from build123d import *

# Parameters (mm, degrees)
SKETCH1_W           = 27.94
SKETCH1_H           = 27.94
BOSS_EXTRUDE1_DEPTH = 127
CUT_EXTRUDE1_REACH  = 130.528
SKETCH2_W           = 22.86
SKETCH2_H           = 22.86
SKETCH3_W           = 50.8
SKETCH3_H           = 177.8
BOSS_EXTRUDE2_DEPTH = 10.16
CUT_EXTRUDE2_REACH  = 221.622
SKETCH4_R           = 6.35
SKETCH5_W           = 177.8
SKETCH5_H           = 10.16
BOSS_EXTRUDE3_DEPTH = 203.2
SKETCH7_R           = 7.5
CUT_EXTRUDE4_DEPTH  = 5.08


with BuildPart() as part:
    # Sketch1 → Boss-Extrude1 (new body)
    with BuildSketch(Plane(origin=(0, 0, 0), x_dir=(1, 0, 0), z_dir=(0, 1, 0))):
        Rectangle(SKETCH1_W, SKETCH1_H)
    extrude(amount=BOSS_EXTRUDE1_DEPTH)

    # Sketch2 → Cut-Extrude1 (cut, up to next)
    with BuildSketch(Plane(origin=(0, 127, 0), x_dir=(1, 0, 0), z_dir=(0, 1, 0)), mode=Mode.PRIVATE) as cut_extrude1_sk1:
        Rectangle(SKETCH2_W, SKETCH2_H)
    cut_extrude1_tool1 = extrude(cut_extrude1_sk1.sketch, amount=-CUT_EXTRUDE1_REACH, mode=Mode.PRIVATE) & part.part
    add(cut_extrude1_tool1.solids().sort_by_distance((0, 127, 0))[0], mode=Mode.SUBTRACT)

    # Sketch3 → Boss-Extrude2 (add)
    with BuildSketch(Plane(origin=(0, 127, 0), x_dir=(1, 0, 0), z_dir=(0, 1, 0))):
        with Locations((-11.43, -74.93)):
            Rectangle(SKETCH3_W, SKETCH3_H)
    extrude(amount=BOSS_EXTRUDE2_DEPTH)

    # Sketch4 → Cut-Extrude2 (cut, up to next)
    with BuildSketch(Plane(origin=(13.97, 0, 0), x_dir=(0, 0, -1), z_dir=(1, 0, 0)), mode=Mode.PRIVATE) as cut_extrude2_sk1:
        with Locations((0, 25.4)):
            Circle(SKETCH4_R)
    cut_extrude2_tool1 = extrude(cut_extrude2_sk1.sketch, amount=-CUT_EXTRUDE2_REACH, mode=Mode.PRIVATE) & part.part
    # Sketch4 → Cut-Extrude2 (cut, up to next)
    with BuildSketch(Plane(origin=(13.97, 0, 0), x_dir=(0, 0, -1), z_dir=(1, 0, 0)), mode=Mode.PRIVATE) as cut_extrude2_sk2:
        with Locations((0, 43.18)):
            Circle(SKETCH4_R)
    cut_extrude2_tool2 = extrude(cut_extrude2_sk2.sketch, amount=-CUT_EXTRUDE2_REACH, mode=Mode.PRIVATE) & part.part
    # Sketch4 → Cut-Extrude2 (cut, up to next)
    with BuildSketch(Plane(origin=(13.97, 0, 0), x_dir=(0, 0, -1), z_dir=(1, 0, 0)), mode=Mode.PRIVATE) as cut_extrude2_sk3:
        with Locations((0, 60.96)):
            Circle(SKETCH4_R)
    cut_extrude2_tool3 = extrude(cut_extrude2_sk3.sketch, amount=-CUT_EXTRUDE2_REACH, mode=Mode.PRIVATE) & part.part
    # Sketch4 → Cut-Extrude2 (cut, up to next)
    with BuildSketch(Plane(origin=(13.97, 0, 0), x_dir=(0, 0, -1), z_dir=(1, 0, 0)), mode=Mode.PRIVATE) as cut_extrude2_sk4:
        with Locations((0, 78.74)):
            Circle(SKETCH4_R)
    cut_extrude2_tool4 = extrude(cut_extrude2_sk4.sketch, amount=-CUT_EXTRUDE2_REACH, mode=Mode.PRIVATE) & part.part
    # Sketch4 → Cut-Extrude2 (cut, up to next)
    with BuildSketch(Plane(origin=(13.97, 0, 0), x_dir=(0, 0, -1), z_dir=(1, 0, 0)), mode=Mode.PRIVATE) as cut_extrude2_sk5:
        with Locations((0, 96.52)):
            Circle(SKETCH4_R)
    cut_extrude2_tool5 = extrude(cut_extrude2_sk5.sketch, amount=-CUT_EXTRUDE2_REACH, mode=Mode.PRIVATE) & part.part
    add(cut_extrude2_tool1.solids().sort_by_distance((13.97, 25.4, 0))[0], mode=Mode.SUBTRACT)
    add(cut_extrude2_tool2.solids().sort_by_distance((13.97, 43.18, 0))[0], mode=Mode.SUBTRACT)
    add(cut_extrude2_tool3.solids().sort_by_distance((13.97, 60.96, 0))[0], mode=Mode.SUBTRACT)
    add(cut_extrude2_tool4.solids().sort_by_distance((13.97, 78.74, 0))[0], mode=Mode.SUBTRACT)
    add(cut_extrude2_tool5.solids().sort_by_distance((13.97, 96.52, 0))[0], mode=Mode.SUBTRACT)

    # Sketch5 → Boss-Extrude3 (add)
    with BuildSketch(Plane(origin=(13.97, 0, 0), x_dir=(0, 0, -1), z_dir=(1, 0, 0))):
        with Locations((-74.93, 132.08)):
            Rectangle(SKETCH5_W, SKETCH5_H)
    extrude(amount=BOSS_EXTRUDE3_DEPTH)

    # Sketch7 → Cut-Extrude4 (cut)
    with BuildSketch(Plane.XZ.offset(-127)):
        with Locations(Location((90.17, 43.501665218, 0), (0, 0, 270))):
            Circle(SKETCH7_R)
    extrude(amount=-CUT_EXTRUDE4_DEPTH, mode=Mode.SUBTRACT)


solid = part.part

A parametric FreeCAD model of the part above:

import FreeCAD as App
import Part
import Sketcher
Q = App.Units.Quantity

doc = App.newDocument("Part")
params = doc.addObject("Spreadsheet::Sheet", "Params")
for row, (alias, value) in enumerate([
    ("sketch1_width", "1.1 in"),
    ("pad1_length", "5 in"),
    ("sketch2_width", "0.9 in"),
    ("sketch3_width", "2 in"),
    ("sketch3_height", "7 in"),
    ("pad2_length", "0.4 in"),
    ("sketch4_diameter", "0.5 in"),
    ("sketch5_diameter", "0.5 in"),
    ("sketch6_diameter", "0.5 in"),
    ("sketch7_diameter", "0.5 in"),
    ("sketch8_diameter", "0.5 in"),
    ("sketch9_height", "7 in"),
    ("sketch9_width", "0.4 in"),
    ("pad3_length", "8 in"),
    ("pocket7_length", "0.2 in"),
], start=1):
    params.set(f"A{row}", alias)
    params.set(f"B{row}", "=" + value)
    params.setAlias(f"B{row}", alias)

body = doc.addObject("PartDesign::Body", "Body")

# Sketch on XZ plane
sketch1 = doc.addObject("Sketcher::SketchObject", "Sketch")
body.addObject(sketch1)
sketch1.AttachmentSupport = (doc.XZ_Plane, [""])
sketch1.MapMode = "FlatFace"
sketch1.addGeometry(Part.LineSegment(App.Vector(-14, -14, 0), App.Vector(-14, 14, 0)), False)
sketch1.addGeometry(Part.LineSegment(App.Vector(-14, 14, 0), App.Vector(14, 14, 0)), False)
sketch1.addGeometry(Part.LineSegment(App.Vector(14, 14, 0), App.Vector(14, -14, 0)), False)
sketch1.addGeometry(Part.LineSegment(App.Vector(14, -14, 0), App.Vector(-14, -14, 0)), False)
sketch1.addConstraint(Sketcher.Constraint("Coincident", 0, 2, 1, 1))
sketch1.addConstraint(Sketcher.Constraint("Coincident", 1, 2, 2, 1))
sketch1.addConstraint(Sketcher.Constraint("Coincident", 2, 2, 3, 1))
sketch1.addConstraint(Sketcher.Constraint("Coincident", 3, 2, 0, 1))
sketch1.addConstraint(Sketcher.Constraint("Vertical", 0))
sketch1.addConstraint(Sketcher.Constraint("Horizontal", 1))
sketch1.addConstraint(Sketcher.Constraint("Vertical", 2))
sketch1.addConstraint(Sketcher.Constraint("Horizontal", 3))
sketch1.addConstraint(Sketcher.Constraint("Symmetric", 0, 2, 2, 2, -1, 1))
sketch1.addConstraint(Sketcher.Constraint("Equal", 3, 0))
sketch1.addConstraint(Sketcher.Constraint("DistanceX", 1, 1, 1, 2, Q("1.1 in")))
sketch1.setExpression("Constraints[10]", "Params.sketch1_width")
pad1 = doc.addObject("PartDesign::Pad", "Pad")
body.addObject(pad1)
pad1.Profile = sketch1
pad1.setExpression("Length", "Params.pad1_length")
pad1.Reversed = True

# Sketch on XZ plane
sketch2 = doc.addObject("Sketcher::SketchObject", "Sketch001")
body.addObject(sketch2)
sketch2.AttachmentSupport = (doc.XZ_Plane, [""])
sketch2.MapMode = "FlatFace"
sketch2.AttachmentOffset = App.Placement(App.Vector(0, 0, -5 * 25.4), App.Rotation())
sketch2.addGeometry(Part.LineSegment(App.Vector(-11, -11, 0), App.Vector(-11, 11, 0)), False)
sketch2.addGeometry(Part.LineSegment(App.Vector(-11, 11, 0), App.Vector(11, 11, 0)), False)
sketch2.addGeometry(Part.LineSegment(App.Vector(11, 11, 0), App.Vector(11, -11, 0)), False)
sketch2.addGeometry(Part.LineSegment(App.Vector(11, -11, 0), App.Vector(-11, -11, 0)), False)
sketch2.addConstraint(Sketcher.Constraint("Coincident", 0, 2, 1, 1))
sketch2.addConstraint(Sketcher.Constraint("Coincident", 1, 2, 2, 1))
sketch2.addConstraint(Sketcher.Constraint("Coincident", 2, 2, 3, 1))
sketch2.addConstraint(Sketcher.Constraint("Coincident", 3, 2, 0, 1))
sketch2.addConstraint(Sketcher.Constraint("Vertical", 0))
sketch2.addConstraint(Sketcher.Constraint("Horizontal", 1))
sketch2.addConstraint(Sketcher.Constraint("Vertical", 2))
sketch2.addConstraint(Sketcher.Constraint("Horizontal", 3))
sketch2.addConstraint(Sketcher.Constraint("Symmetric", 0, 2, 2, 2, -1, 1))
sketch2.addConstraint(Sketcher.Constraint("Equal", 3, 0))
sketch2.addConstraint(Sketcher.Constraint("DistanceX", 1, 1, 1, 2, Q("0.9 in")))
sketch2.setExpression("Constraints[10]", "Params.sketch2_width")
pocket1 = doc.addObject("PartDesign::Pocket", "Pocket")
body.addObject(pocket1)
pocket1.Profile = sketch2
pocket1.Type = "UpToFirst"
pocket1.Reversed = True

# Sketch on XZ plane
sketch3 = doc.addObject("Sketcher::SketchObject", "Sketch002")
body.addObject(sketch3)
sketch3.AttachmentSupport = (doc.XZ_Plane, [""])
sketch3.MapMode = "FlatFace"
sketch3.AttachmentOffset = App.Placement(App.Vector(0, 0, -5 * 25.4), App.Rotation())
sketch3.addGeometry(Part.LineSegment(App.Vector(-37, -14, 0), App.Vector(-37, 164, 0)), False)
sketch3.addGeometry(Part.LineSegment(App.Vector(-37, 164, 0), App.Vector(14, 164, 0)), False)
sketch3.addGeometry(Part.LineSegment(App.Vector(14, 164, 0), App.Vector(14, -14, 0)), False)
sketch3.addGeometry(Part.LineSegment(App.Vector(14, -14, 0), App.Vector(-37, -14, 0)), False)
sketch3.addConstraint(Sketcher.Constraint("Coincident", 0, 2, 1, 1))
sketch3.addConstraint(Sketcher.Constraint("Coincident", 1, 2, 2, 1))
sketch3.addConstraint(Sketcher.Constraint("Coincident", 2, 2, 3, 1))
sketch3.addConstraint(Sketcher.Constraint("Coincident", 3, 2, 0, 1))
sketch3.addConstraint(Sketcher.Constraint("Vertical", 0))
sketch3.addConstraint(Sketcher.Constraint("Horizontal", 1))
sketch3.addConstraint(Sketcher.Constraint("Vertical", 2))
sketch3.addConstraint(Sketcher.Constraint("Horizontal", 3))
sketch3.addConstraint(Sketcher.Constraint("DistanceX", 1, 1, 1, 2, Q("2 in")))
sketch3.addConstraint(Sketcher.Constraint("DistanceY", 0, 1, 0, 2, Q("7 in")))
sketch3.addConstraint(Sketcher.Constraint("DistanceX", 0, 2, -1, 1, Q("1.45 in")))
sketch3.addConstraint(Sketcher.Constraint("DistanceY", -1, 1, 0, 2, Q("6.45 in")))
sketch3.setExpression("Constraints[8]", "Params.sketch3_width")
sketch3.setExpression("Constraints[9]", "Params.sketch3_height")
pad2 = doc.addObject("PartDesign::Pad", "Pad001")
body.addObject(pad2)
pad2.Profile = sketch3
pad2.setExpression("Length", "Params.pad2_length")
pad2.Reversed = True

# Sketch on YZ plane
sketch4 = doc.addObject("Sketcher::SketchObject", "Sketch003")
body.addObject(sketch4)
sketch4.AttachmentSupport = (doc.YZ_Plane, [""])
sketch4.MapMode = "FlatFace"
sketch4.AttachmentOffset = App.Placement(App.Vector(0, 0, 0.55 * 25.4), App.Rotation())
sketch4.addGeometry(Part.Circle(App.Vector(25, 0, 0), App.Vector(0, 0, 1), 6), False)
sketch4.addConstraint(Sketcher.Constraint("PointOnObject", 0, 3, -1))
sketch4.addConstraint(Sketcher.Constraint("Diameter", 0, Q("0.5 in")))
sketch4.addConstraint(Sketcher.Constraint("DistanceX", -1, 1, 0, 3, Q("1 in")))
sketch4.setExpression("Constraints[1]", "Params.sketch4_diameter")
pocket2 = doc.addObject("PartDesign::Pocket", "Pocket001")
body.addObject(pocket2)
pocket2.Profile = sketch4
pocket2.Type = "UpToFirst"

# Sketch on YZ plane
sketch5 = doc.addObject("Sketcher::SketchObject", "Sketch004")
body.addObject(sketch5)
sketch5.AttachmentSupport = (doc.YZ_Plane, [""])
sketch5.MapMode = "FlatFace"
sketch5.AttachmentOffset = App.Placement(App.Vector(0, 0, 0.55 * 25.4), App.Rotation())
sketch5.addGeometry(Part.Circle(App.Vector(43, 0, 0), App.Vector(0, 0, 1), 6), False)
sketch5.addConstraint(Sketcher.Constraint("PointOnObject", 0, 3, -1))
sketch5.addConstraint(Sketcher.Constraint("Diameter", 0, Q("0.5 in")))
sketch5.addConstraint(Sketcher.Constraint("DistanceX", -1, 1, 0, 3, Q("1.7 in")))
sketch5.setExpression("Constraints[1]", "Params.sketch5_diameter")
pocket3 = doc.addObject("PartDesign::Pocket", "Pocket002")
body.addObject(pocket3)
pocket3.Profile = sketch5
pocket3.Type = "UpToFirst"

# Sketch on YZ plane
sketch6 = doc.addObject("Sketcher::SketchObject", "Sketch005")
body.addObject(sketch6)
sketch6.AttachmentSupport = (doc.YZ_Plane, [""])
sketch6.MapMode = "FlatFace"
sketch6.AttachmentOffset = App.Placement(App.Vector(0, 0, 0.55 * 25.4), App.Rotation())
sketch6.addGeometry(Part.Circle(App.Vector(61, 0, 0), App.Vector(0, 0, 1), 6), False)
sketch6.addConstraint(Sketcher.Constraint("PointOnObject", 0, 3, -1))
sketch6.addConstraint(Sketcher.Constraint("Diameter", 0, Q("0.5 in")))
sketch6.addConstraint(Sketcher.Constraint("DistanceX", -1, 1, 0, 3, Q("2.4 in")))
sketch6.setExpression("Constraints[1]", "Params.sketch6_diameter")
pocket4 = doc.addObject("PartDesign::Pocket", "Pocket003")
body.addObject(pocket4)
pocket4.Profile = sketch6
pocket4.Type = "UpToFirst"

# Sketch on YZ plane
sketch7 = doc.addObject("Sketcher::SketchObject", "Sketch006")
body.addObject(sketch7)
sketch7.AttachmentSupport = (doc.YZ_Plane, [""])
sketch7.MapMode = "FlatFace"
sketch7.AttachmentOffset = App.Placement(App.Vector(0, 0, 0.55 * 25.4), App.Rotation())
sketch7.addGeometry(Part.Circle(App.Vector(79, 0, 0), App.Vector(0, 0, 1), 6), False)
sketch7.addConstraint(Sketcher.Constraint("PointOnObject", 0, 3, -1))
sketch7.addConstraint(Sketcher.Constraint("Diameter", 0, Q("0.5 in")))
sketch7.addConstraint(Sketcher.Constraint("DistanceX", -1, 1, 0, 3, Q("3.1 in")))
sketch7.setExpression("Constraints[1]", "Params.sketch7_diameter")
pocket5 = doc.addObject("PartDesign::Pocket", "Pocket004")
body.addObject(pocket5)
pocket5.Profile = sketch7
pocket5.Type = "UpToFirst"

# Sketch on YZ plane
sketch8 = doc.addObject("Sketcher::SketchObject", "Sketch007")
body.addObject(sketch8)
sketch8.AttachmentSupport = (doc.YZ_Plane, [""])
sketch8.MapMode = "FlatFace"
sketch8.AttachmentOffset = App.Placement(App.Vector(0, 0, 0.55 * 25.4), App.Rotation())
sketch8.addGeometry(Part.Circle(App.Vector(97, 0, 0), App.Vector(0, 0, 1), 6), False)
sketch8.addConstraint(Sketcher.Constraint("PointOnObject", 0, 3, -1))
sketch8.addConstraint(Sketcher.Constraint("Diameter", 0, Q("0.5 in")))
sketch8.addConstraint(Sketcher.Constraint("DistanceX", -1, 1, 0, 3, Q("3.8 in")))
sketch8.setExpression("Constraints[1]", "Params.sketch8_diameter")
pocket6 = doc.addObject("PartDesign::Pocket", "Pocket005")
body.addObject(pocket6)
pocket6.Profile = sketch8
pocket6.Type = "UpToFirst"

# Sketch on YZ plane
sketch9 = doc.addObject("Sketcher::SketchObject", "Sketch008")
body.addObject(sketch9)
sketch9.AttachmentSupport = (doc.YZ_Plane, [""])
sketch9.MapMode = "FlatFace"
sketch9.AttachmentOffset = App.Placement(App.Vector(0, 0, 0.55 * 25.4), App.Rotation())
sketch9.addGeometry(Part.LineSegment(App.Vector(137, 164, 0), App.Vector(127, 164, 0)), False)
sketch9.addGeometry(Part.LineSegment(App.Vector(127, 164, 0), App.Vector(127, -14, 0)), False)
sketch9.addGeometry(Part.LineSegment(App.Vector(127, -14, 0), App.Vector(137, -14, 0)), False)
sketch9.addGeometry(Part.LineSegment(App.Vector(137, -14, 0), App.Vector(137, 164, 0)), False)
sketch9.addConstraint(Sketcher.Constraint("Coincident", 0, 2, 1, 1))
sketch9.addConstraint(Sketcher.Constraint("Coincident", 1, 2, 2, 1))
sketch9.addConstraint(Sketcher.Constraint("Coincident", 2, 2, 3, 1))
sketch9.addConstraint(Sketcher.Constraint("Coincident", 3, 2, 0, 1))
sketch9.addConstraint(Sketcher.Constraint("Horizontal", 0))
sketch9.addConstraint(Sketcher.Constraint("Vertical", 1))
sketch9.addConstraint(Sketcher.Constraint("Horizontal", 2))
sketch9.addConstraint(Sketcher.Constraint("Vertical", 3))
sketch9.addConstraint(Sketcher.Constraint("DistanceY", 1, 2, 1, 1, Q("7 in")))
sketch9.addConstraint(Sketcher.Constraint("DistanceX", 0, 2, 0, 1, Q("0.4 in")))
sketch9.addConstraint(Sketcher.Constraint("DistanceX", -1, 1, 0, 2, Q("5 in")))
sketch9.addConstraint(Sketcher.Constraint("DistanceY", -1, 1, 0, 2, Q("6.45 in")))
sketch9.setExpression("Constraints[8]", "Params.sketch9_height")
sketch9.setExpression("Constraints[9]", "Params.sketch9_width")
pad3 = doc.addObject("PartDesign::Pad", "Pad002")
body.addObject(pad3)
pad3.Profile = sketch9
pad3.setExpression("Length", "Params.pad3_length")

# Sketch on XZ plane
sketch10 = doc.addObject("Sketcher::SketchObject", "Sketch009")
body.addObject(sketch10)
sketch10.AttachmentSupport = (doc.XZ_Plane, [""])
sketch10.MapMode = "FlatFace"
sketch10.AttachmentOffset = App.Placement(App.Vector(0, 0, -5 * 25.4), App.Rotation())
sketch10.addGeometry(Part.Circle(App.Vector(90, 44, 0), App.Vector(0, 0, 1), 8), False)
sketch10.addConstraint(Sketcher.Constraint("Diameter", 0, Q("15 mm")))
sketch10.addConstraint(Sketcher.Constraint("DistanceX", -1, 1, 0, 3, Q("3.55 in")))
sketch10.addConstraint(Sketcher.Constraint("DistanceY", -1, 1, 0, 3, Q("43.501665 mm")))
pocket7 = doc.addObject("PartDesign::Pocket", "Pocket006")
body.addObject(pocket7)
pocket7.Profile = sketch10
pocket7.setExpression("Length", "Params.pocket7_length")

doc.recompute()
